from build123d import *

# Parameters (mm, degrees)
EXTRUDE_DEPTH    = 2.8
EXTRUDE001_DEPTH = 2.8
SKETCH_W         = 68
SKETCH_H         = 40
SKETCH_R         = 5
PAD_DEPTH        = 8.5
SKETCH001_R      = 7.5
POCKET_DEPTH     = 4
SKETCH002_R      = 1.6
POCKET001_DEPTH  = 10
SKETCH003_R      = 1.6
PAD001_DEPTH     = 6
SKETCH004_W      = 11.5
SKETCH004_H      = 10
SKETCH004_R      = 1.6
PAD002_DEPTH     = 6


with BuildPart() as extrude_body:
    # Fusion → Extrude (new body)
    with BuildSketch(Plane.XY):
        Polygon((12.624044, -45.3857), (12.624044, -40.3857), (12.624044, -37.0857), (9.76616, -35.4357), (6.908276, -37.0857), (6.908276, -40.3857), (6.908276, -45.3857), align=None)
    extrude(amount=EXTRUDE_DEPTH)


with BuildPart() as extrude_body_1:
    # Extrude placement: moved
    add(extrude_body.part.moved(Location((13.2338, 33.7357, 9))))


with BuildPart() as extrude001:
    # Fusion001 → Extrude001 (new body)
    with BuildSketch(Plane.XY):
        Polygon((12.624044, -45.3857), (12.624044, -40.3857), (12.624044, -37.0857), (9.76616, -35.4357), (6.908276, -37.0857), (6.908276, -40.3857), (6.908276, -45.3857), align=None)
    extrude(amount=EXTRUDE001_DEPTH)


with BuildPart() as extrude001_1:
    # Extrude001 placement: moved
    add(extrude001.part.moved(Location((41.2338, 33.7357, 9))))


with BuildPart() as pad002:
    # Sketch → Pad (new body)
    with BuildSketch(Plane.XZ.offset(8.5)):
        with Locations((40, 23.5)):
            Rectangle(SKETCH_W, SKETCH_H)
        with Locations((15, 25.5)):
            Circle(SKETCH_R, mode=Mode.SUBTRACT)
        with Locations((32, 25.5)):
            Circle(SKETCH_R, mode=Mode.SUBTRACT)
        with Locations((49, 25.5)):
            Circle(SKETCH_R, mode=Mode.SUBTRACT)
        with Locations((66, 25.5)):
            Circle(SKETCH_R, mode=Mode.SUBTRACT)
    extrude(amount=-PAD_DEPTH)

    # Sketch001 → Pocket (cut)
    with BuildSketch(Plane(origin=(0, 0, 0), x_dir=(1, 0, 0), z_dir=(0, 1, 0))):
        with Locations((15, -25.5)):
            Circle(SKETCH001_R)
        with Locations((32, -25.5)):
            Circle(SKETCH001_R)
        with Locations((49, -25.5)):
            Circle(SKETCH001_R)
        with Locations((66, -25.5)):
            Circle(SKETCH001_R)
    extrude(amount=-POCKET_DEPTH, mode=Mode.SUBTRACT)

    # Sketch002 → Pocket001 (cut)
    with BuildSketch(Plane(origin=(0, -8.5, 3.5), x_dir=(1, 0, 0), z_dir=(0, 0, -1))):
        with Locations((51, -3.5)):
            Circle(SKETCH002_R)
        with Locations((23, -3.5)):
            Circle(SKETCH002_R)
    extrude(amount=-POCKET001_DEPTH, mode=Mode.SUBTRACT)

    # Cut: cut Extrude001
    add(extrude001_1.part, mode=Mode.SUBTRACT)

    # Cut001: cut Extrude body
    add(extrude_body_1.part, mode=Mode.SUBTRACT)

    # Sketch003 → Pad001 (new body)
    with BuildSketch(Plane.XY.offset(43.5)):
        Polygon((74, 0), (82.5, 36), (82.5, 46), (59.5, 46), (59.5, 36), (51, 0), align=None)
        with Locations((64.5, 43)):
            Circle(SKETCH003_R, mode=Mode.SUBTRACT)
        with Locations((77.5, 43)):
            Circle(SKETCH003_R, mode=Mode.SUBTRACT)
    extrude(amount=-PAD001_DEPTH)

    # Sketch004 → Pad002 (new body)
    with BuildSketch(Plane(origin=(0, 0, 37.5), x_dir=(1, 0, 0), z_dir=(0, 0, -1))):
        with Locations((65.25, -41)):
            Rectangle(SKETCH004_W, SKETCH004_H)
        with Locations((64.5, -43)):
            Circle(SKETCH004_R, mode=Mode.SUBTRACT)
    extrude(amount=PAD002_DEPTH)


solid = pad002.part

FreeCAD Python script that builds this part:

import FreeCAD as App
import Part
import Sketcher
from FreeCAD import Vector
Q = App.Units.Quantity

doc = App.newDocument("Part")
body = doc.addObject("PartDesign::Body", "Body")

# Sketch on XY plane
sketch1 = doc.addObject("Sketcher::SketchObject", "Sketch")
body.addObject(sketch1)
sketch1.AttachmentSupport = (doc.XY_Plane, [""])
sketch1.MapMode = "FlatFace"
sketch1.addGeometry([
    Part.LineSegment(Vector(12.6, -45.4, 0), Vector(12.6, -37.1, 0)),  # 0
    Part.LineSegment(Vector(12.6, -37.1, 0), Vector(9.8, -35.4, 0)),  # 1
    Part.LineSegment(Vector(9.8, -35.4, 0), Vector(6.9, -37.1, 0)),  # 2
    Part.LineSegment(Vector(6.9, -37.1, 0), Vector(6.9, -45.4, 0)),  # 3
    Part.LineSegment(Vector(6.9, -45.4, 0), Vector(12.6, -45.4, 0)),  # 4
], False)
sketch1.addConstraint([
    Sketcher.Constraint("Coincident", 0, 2, 1, 1),
    Sketcher.Constraint("Coincident", 1, 2, 2, 1),
    Sketcher.Constraint("Coincident", 2, 2, 3, 1),
    Sketcher.Constraint("Coincident", 3, 2, 4, 1),
    Sketcher.Constraint("Coincident", 4, 2, 0, 1),
    Sketcher.Constraint("Vertical", 0),
    Sketcher.Constraint("Vertical", 3),
    Sketcher.Constraint("Horizontal", 4),
    Sketcher.Constraint("Horizontal", 0, 2, 2, 2),
    Sketcher.Constraint("Equal", 1, 2),
    Sketcher.Constraint("Angle", 1, Q("150.000001 deg")),
    Sketcher.Constraint("DistanceY", 0, 1, 0, 2, 8.3),
    Sketcher.Constraint("Distance", 1, 3.3),
    Sketcher.Constraint("DistanceY", 0, 2, -1, 1, 37.0857),
    Sketcher.Constraint("DistanceX", -1, 1, 1, 2, 9.76616),
])
pad1 = doc.addObject("PartDesign::Pad", "Pad")
body.addObject(pad1)
pad1.Profile = sketch1
pad1.Length = 2.8
body2 = doc.addObject("PartDesign::Body", "Body001")
doc.recompute()

body.Placement = App.Placement(Vector(13.2338, 33.7357, 9), App.Rotation(Vector(0, 0, 1), 0))
boolean = doc.addObject("PartDesign::Boolean", "Boolean")
body2.addObject(boolean)
boolean.Type = "Fuse"
boolean.addObjects([body])
body3 = doc.addObject("PartDesign::Body", "Body002")

# Sketch on XY plane
sketch2 = doc.addObject("Sketcher::SketchObject", "Sketch001")
body3.addObject(sketch2)
sketch2.AttachmentSupport = (doc.getObject("XY_Plane002"), [""])
sketch2.MapMode = "FlatFace"
sketch2.addGeometry([
    Part.LineSegment(Vector(12.6, -45.4, 0), Vector(12.6, -37.1, 0)),  # 0
    Part.LineSegment(Vector(12.6, -37.1, 0), Vector(9.8, -35.4, 0)),  # 1
    Part.LineSegment(Vector(9.8, -35.4, 0), Vector(6.9, -37.1, 0)),  # 2
    Part.LineSegment(Vector(6.9, -37.1, 0), Vector(6.9, -45.4, 0)),  # 3
    Part.LineSegment(Vector(6.9, -45.4, 0), Vector(12.6, -45.4, 0)),  # 4
], False)
sketch2.addConstraint([
    Sketcher.Constraint("Coincident", 0, 2, 1, 1),
    Sketcher.Constraint("Coincident", 1, 2, 2, 1),
    Sketcher.Constraint("Coincident", 2, 2, 3, 1),
    Sketcher.Constraint("Coincident", 3, 2, 4, 1),
    Sketcher.Constraint("Coincident", 4, 2, 0, 1),
    Sketcher.Constraint("Vertical", 0),
    Sketcher.Constraint("Vertical", 3),
    Sketcher.Constraint("Horizontal", 4),
    Sketcher.Constraint("Horizontal", 0, 2, 2, 2),
    Sketcher.Constraint("Equal", 1, 2),
    Sketcher.Constraint("Angle", 1, Q("150.000001 deg")),
    Sketcher.Constraint("DistanceY", 0, 1, 0, 2, 8.3),
    Sketcher.Constraint("Distance", 1, 3.3),
    Sketcher.Constraint("DistanceY", 0, 2, -1, 1, 37.0857),
    Sketcher.Constraint("DistanceX", -1, 1, 1, 2, 9.76616),
])
pad2 = doc.addObject("PartDesign::Pad", "Pad001")
body3.addObject(pad2)
pad2.Profile = sketch2
pad2.Length = 2.8
body4 = doc.addObject("PartDesign::Body", "Body003")
doc.recompute()

body3.Placement = App.Placement(Vector(41.2338, 33.7357, 9), App.Rotation(Vector(0, 0, 1), 0))
boolean2 = doc.addObject("PartDesign::Boolean", "Boolean001")
body4.addObject(boolean2)
boolean2.Type = "Fuse"
boolean2.addObjects([body3])
body5 = doc.addObject("PartDesign::Body", "Body004")

# Sketch on XZ plane
sketch3 = doc.addObject("Sketcher::SketchObject", "Sketch002")
body5.addObject(sketch3)
sketch3.AttachmentSupport = (doc.getObject("XZ_Plane004"), [""])
sketch3.MapMode = "FlatFace"
sketch3.AttachmentOffset = App.Placement(Vector(0, 0, 8.5), App.Rotation())
sketch3.addGeometry([
    Part.LineSegment(Vector(6, 44, 0), Vector(6, 4, 0)),  # 0
    Part.LineSegment(Vector(6, 4, 0), Vector(74, 4, 0)),  # 1
    Part.LineSegment(Vector(74, 4, 0), Vector(74, 44, 0)),  # 2
    Part.LineSegment(Vector(74, 44, 0), Vector(6, 44, 0)),  # 3
    Part.Circle(Vector(15, 26, 0), Vector(0, 0, 1), 5),  # 4
    Part.Circle(Vector(32, 26, 0), Vector(0, 0, 1), 5),  # 5
    Part.Circle(Vector(49, 26, 0), Vector(0, 0, 1), 5),  # 6
    Part.Circle(Vector(66, 26, 0), Vector(0, 0, 1), 5),  # 7
], False)
sketch3.addConstraint([
    Sketcher.Constraint("Coincident", 0, 2, 1, 1),
    Sketcher.Constraint("Coincident", 1, 2, 2, 1),
    Sketcher.Constraint("Coincident", 2, 2, 3, 1),
    Sketcher.Constraint("Coincident", 3, 2, 0, 1),
    Sketcher.Constraint("Vertical", 0),
    Sketcher.Constraint("Horizontal", 1),
    Sketcher.Constraint("Vertical", 2),
    Sketcher.Constraint("Horizontal", 3),
    Sketcher.Constraint("Equal", 4, 5),
    Sketcher.Constraint("Equal", 5, 6),
    Sketcher.Constraint("Equal", 6, 7),
    Sketcher.Constraint("Horizontal", 4, 3, 5, 3),
    Sketcher.Constraint("Horizontal", 5, 3, 6, 3),
    Sketcher.Constraint("Horizontal", 6, 3, 7, 3),
    Sketcher.Constraint("Diameter", 4, 10.0),
    Sketcher.Constraint("DistanceX", 1, 1, 1, 2, 68.0),
    Sketcher.Constraint("DistanceY", 0, 2, 0, 1, 40.0),
    Sketcher.Constraint("DistanceX", -1, 1, 4, 3, 15.0),
    Sketcher.Constraint("DistanceX", -1, 1, 5, 3, 32.0),
    Sketcher.Constraint("DistanceX", -1, 1, 6, 3, 49.0),
    Sketcher.Constraint("DistanceX", -1, 1, 7, 3, 66.0),
    Sketcher.Constraint("DistanceX", -1, 1, 0, 2, 6.0),
    Sketcher.Constraint("DistanceY", 0, 2, 4, 3, 22.0),
    Sketcher.Constraint("DistanceY", -1, 1, 4, 3, 25.5),
])
pad3 = doc.addObject("PartDesign::Pad", "Pad002")
body5.addObject(pad3)
pad3.Profile = sketch3
pad3.Length = 8.5
pad3.Reversed = True

# Sketch on XZ plane
sketch4 = doc.addObject("Sketcher::SketchObject", "Sketch003")
body5.addObject(sketch4)
sketch4.AttachmentSupport = (doc.getObject("XZ_Plane004"), [""])
sketch4.MapMode = "FlatFace"
sketch4.addGeometry([
    Part.Circle(Vector(15, 26, 0), Vector(0, 0, 1), 8),
    Part.Circle(Vector(32, 26, 0), Vector(0, 0, 1), 8),
    Part.Circle(Vector(49, 26, 0), Vector(0, 0, 1), 8),
    Part.Circle(Vector(66, 26, 0), Vector(0, 0, 1), 8),
], False)
sketch4.addConstraint([
    Sketcher.Constraint("Equal", 0, 1),
    Sketcher.Constraint("Equal", 1, 2),
    Sketcher.Constraint("Equal", 2, 3),
    Sketcher.Constraint("Horizontal", 0, 3, 1, 3),
    Sketcher.Constraint("Horizontal", 1, 3, 2, 3),
    Sketcher.Constraint("Horizontal", 2, 3, 3, 3),
    Sketcher.Constraint("Diameter", 0, 15.0),
    Sketcher.Constraint("DistanceX", -1, 1, 0, 3, 15.0),
    Sketcher.Constraint("DistanceX", -1, 1, 1, 3, 32.0),
    Sketcher.Constraint("DistanceX", -1, 1, 2, 3, 49.0),
    Sketcher.Constraint("DistanceX", -1, 1, 3, 3, 66.0),
    Sketcher.Constraint("DistanceY", -1, 1, 0, 3, 25.5),
])
pocket1 = doc.addObject("PartDesign::Pocket", "Pocket")
body5.addObject(pocket1)
pocket1.Profile = sketch4
pocket1.Length = 4
pocket1.Reversed = True

# Sketch on XY plane
sketch5 = doc.addObject("Sketcher::SketchObject", "Sketch004")
body5.addObject(sketch5)
sketch5.AttachmentSupport = (doc.getObject("XY_Plane004"), [""])
sketch5.MapMode = "FlatFace"
sketch5.AttachmentOffset = App.Placement(Vector(0, 0, 3.5), App.Rotation())
sketch5.addGeometry([
    Part.Circle(Vector(51, -5, 0), Vector(0, 0, 1), 1.6),
    Part.Circle(Vector(23, -5, 0), Vector(0, 0, 1), 1.6),
], False)
sketch5.addConstraint([
    Sketcher.Constraint("Equal", 0, 1),
    Sketcher.Constraint("Horizontal", 0, 3, 1, 3),
    Sketcher.Constraint("Diameter", 0, 3.2),
    Sketcher.Constraint("DistanceX", -1, 1, 0, 3, 51.0),
    Sketcher.Constraint("DistanceY", 0, 3, -1, 1, 5.0),
    Sketcher.Constraint("DistanceX", -1, 1, 1, 3, 23.0),
])
pocket2 = doc.addObject("PartDesign::Pocket", "Pocket001")
body5.addObject(pocket2)
pocket2.Profile = sketch5
pocket2.Length = 10
pocket2.Reversed = True
doc.recompute()

boolean3 = doc.addObject("PartDesign::Boolean", "Boolean002")
body5.addObject(boolean3)
boolean3.Type = "Cut"
boolean3.addObjects([body4])
doc.recompute()

boolean4 = doc.addObject("PartDesign::Boolean", "Boolean003")
body5.addObject(boolean4)
boolean4.Type = "Cut"
boolean4.addObjects([body2])

# Sketch on XY plane
sketch6 = doc.addObject("Sketcher::SketchObject", "Sketch005")
body5.addObject(sketch6)
sketch6.AttachmentSupport = (doc.getObject("XY_Plane004"), [""])
sketch6.MapMode = "FlatFace"
sketch6.AttachmentOffset = App.Placement(Vector(0, 0, 43.5), App.Rotation())
sketch6.addGeometry([
    Part.LineSegment(Vector(74, 0, 0), Vector(82.5, 36, 0)),  # 0
    Part.LineSegment(Vector(82.5, 36, 0), Vector(82.5, 46, 0)),  # 1
    Part.LineSegment(Vector(82.5, 46, 0), Vector(59.5, 46, 0)),  # 2
    Part.LineSegment(Vector(59.5, 46, 0), Vector(59.5, 36, 0)),  # 3
    Part.LineSegment(Vector(59.5, 36, 0), Vector(51, 0, 0)),  # 4
    Part.LineSegment(Vector(51, 0, 0), Vector(74, 0, 0)),  # 5
    Part.Circle(Vector(64.5, 43, 0), Vector(0, 0, 1), 1.6),  # 6
    Part.Circle(Vector(77.5, 43, 0), Vector(0, 0, 1), 1.6),  # 7
], False)
sketch6.addConstraint([
    Sketcher.Constraint("Coincident", 0, 2, 1, 1),
    Sketcher.Constraint("Coincident", 1, 2, 2, 1),
    Sketcher.Constraint("Coincident", 2, 2, 3, 1),
    Sketcher.Constraint("Coincident", 3, 2, 4, 1),
    Sketcher.Constraint("Coincident", 4, 2, 5, 1),
    Sketcher.Constraint("Coincident", 5, 2, 0, 1),
    Sketcher.Constraint("Vertical", 1),
    Sketcher.Constraint("Horizontal", 2),
    Sketcher.Constraint("Vertical", 3),
    Sketcher.Constraint("Horizontal", 5),
    Sketcher.Constraint("Equal", 6, 7),
    Sketcher.Constraint("PointOnObject", 4, 2, -1),
    Sketcher.Constraint("Parallel", 0, 4),
    Sketcher.Constraint("Horizontal", 6, 3, 7, 3),
    Sketcher.Constraint("Horizontal", 0, 2, 3, 2),
    Sketcher.Constraint("Diameter", 6, 3.2),
    Sketcher.Constraint("DistanceX", 2, 2, 2, 1, 23.0),
    Sketcher.Constraint("DistanceY", 1, 1, 1, 2, 10.0),
    Sketcher.Constraint("DistanceY", -1, 1, 6, 3, 43.0),
    Sketcher.Constraint("DistanceY", -1, 1, 0, 2, 36.0),
    Sketcher.Constraint("DistanceX", -1, 1, 4, 2, 51.0),
    Sketcher.Constraint("DistanceX", 6, 3, 7, 3, 13.0),
    Sketcher.Constraint("DistanceX", 7, 3, 0, 2, 5.0),
    Sketcher.Constraint("DistanceX", -1, 1, 6, 3, 64.5),
])
pad4 = doc.addObject("PartDesign::Pad", "Pad003")
body5.addObject(pad4)
pad4.Profile = sketch6
pad4.Length = 6
pad4.Reversed = True

# Sketch on XY plane
sketch7 = doc.addObject("Sketcher::SketchObject", "Sketch006")
body5.addObject(sketch7)
sketch7.AttachmentSupport = (doc.getObject("XY_Plane004"), [""])
sketch7.MapMode = "FlatFace"
sketch7.AttachmentOffset = App.Placement(Vector(0, 0, 37.5), App.Rotation())
sketch7.addGeometry([
    Part.LineSegment(Vector(59.5, 36, 0), Vector(59.5, 46, 0)),  # 0
    Part.LineSegment(Vector(59.5, 46, 0), Vector(71, 46, 0)),  # 1
    Part.LineSegment(Vector(71, 46, 0), Vector(71, 36, 0)),  # 2
    Part.LineSegment(Vector(71, 36, 0), Vector(59.5, 36, 0)),  # 3
    Part.Circle(Vector(64.5, 43, 0), Vector(0, 0, 1), 1.6),  # 4
], False)
sketch7.addConstraint([
    Sketcher.Constraint("Coincident", 0, 2, 1, 1),
    Sketcher.Constraint("Coincident", 1, 2, 2, 1),
    Sketcher.Constraint("Coincident", 2, 2, 3, 1),
    Sketcher.Constraint("Coincident", 3, 2, 0, 1),
    Sketcher.Constraint("Vertical", 0),
    Sketcher.Constraint("Horizontal", 1),
    Sketcher.Constraint("Vertical", 2),
    Sketcher.Constraint("Horizontal", 3),
    Sketcher.Constraint("Diameter", 4, 3.2),
    Sketcher.Constraint("DistanceY", 0, 1, 0, 2, 10.0),
    Sketcher.Constraint("DistanceX", 1, 1, 1, 2, 11.5),
    Sketcher.Constraint("DistanceY", -1, 1, 4, 3, 43.0),
    Sketcher.Constraint("DistanceY", -1, 1, 0, 2, 46.0),
    Sketcher.Constraint("DistanceX", -1, 1, 1, 2, 71.0),
    Sketcher.Constraint("DistanceX", 0, 2, 4, 3, 5.0),
])
pad5 = doc.addObject("PartDesign::Pad", "Pad004")
body5.addObject(pad5)
pad5.Profile = sketch7
pad5.Length = 6
pad5.Reversed = True

doc.recompute()
